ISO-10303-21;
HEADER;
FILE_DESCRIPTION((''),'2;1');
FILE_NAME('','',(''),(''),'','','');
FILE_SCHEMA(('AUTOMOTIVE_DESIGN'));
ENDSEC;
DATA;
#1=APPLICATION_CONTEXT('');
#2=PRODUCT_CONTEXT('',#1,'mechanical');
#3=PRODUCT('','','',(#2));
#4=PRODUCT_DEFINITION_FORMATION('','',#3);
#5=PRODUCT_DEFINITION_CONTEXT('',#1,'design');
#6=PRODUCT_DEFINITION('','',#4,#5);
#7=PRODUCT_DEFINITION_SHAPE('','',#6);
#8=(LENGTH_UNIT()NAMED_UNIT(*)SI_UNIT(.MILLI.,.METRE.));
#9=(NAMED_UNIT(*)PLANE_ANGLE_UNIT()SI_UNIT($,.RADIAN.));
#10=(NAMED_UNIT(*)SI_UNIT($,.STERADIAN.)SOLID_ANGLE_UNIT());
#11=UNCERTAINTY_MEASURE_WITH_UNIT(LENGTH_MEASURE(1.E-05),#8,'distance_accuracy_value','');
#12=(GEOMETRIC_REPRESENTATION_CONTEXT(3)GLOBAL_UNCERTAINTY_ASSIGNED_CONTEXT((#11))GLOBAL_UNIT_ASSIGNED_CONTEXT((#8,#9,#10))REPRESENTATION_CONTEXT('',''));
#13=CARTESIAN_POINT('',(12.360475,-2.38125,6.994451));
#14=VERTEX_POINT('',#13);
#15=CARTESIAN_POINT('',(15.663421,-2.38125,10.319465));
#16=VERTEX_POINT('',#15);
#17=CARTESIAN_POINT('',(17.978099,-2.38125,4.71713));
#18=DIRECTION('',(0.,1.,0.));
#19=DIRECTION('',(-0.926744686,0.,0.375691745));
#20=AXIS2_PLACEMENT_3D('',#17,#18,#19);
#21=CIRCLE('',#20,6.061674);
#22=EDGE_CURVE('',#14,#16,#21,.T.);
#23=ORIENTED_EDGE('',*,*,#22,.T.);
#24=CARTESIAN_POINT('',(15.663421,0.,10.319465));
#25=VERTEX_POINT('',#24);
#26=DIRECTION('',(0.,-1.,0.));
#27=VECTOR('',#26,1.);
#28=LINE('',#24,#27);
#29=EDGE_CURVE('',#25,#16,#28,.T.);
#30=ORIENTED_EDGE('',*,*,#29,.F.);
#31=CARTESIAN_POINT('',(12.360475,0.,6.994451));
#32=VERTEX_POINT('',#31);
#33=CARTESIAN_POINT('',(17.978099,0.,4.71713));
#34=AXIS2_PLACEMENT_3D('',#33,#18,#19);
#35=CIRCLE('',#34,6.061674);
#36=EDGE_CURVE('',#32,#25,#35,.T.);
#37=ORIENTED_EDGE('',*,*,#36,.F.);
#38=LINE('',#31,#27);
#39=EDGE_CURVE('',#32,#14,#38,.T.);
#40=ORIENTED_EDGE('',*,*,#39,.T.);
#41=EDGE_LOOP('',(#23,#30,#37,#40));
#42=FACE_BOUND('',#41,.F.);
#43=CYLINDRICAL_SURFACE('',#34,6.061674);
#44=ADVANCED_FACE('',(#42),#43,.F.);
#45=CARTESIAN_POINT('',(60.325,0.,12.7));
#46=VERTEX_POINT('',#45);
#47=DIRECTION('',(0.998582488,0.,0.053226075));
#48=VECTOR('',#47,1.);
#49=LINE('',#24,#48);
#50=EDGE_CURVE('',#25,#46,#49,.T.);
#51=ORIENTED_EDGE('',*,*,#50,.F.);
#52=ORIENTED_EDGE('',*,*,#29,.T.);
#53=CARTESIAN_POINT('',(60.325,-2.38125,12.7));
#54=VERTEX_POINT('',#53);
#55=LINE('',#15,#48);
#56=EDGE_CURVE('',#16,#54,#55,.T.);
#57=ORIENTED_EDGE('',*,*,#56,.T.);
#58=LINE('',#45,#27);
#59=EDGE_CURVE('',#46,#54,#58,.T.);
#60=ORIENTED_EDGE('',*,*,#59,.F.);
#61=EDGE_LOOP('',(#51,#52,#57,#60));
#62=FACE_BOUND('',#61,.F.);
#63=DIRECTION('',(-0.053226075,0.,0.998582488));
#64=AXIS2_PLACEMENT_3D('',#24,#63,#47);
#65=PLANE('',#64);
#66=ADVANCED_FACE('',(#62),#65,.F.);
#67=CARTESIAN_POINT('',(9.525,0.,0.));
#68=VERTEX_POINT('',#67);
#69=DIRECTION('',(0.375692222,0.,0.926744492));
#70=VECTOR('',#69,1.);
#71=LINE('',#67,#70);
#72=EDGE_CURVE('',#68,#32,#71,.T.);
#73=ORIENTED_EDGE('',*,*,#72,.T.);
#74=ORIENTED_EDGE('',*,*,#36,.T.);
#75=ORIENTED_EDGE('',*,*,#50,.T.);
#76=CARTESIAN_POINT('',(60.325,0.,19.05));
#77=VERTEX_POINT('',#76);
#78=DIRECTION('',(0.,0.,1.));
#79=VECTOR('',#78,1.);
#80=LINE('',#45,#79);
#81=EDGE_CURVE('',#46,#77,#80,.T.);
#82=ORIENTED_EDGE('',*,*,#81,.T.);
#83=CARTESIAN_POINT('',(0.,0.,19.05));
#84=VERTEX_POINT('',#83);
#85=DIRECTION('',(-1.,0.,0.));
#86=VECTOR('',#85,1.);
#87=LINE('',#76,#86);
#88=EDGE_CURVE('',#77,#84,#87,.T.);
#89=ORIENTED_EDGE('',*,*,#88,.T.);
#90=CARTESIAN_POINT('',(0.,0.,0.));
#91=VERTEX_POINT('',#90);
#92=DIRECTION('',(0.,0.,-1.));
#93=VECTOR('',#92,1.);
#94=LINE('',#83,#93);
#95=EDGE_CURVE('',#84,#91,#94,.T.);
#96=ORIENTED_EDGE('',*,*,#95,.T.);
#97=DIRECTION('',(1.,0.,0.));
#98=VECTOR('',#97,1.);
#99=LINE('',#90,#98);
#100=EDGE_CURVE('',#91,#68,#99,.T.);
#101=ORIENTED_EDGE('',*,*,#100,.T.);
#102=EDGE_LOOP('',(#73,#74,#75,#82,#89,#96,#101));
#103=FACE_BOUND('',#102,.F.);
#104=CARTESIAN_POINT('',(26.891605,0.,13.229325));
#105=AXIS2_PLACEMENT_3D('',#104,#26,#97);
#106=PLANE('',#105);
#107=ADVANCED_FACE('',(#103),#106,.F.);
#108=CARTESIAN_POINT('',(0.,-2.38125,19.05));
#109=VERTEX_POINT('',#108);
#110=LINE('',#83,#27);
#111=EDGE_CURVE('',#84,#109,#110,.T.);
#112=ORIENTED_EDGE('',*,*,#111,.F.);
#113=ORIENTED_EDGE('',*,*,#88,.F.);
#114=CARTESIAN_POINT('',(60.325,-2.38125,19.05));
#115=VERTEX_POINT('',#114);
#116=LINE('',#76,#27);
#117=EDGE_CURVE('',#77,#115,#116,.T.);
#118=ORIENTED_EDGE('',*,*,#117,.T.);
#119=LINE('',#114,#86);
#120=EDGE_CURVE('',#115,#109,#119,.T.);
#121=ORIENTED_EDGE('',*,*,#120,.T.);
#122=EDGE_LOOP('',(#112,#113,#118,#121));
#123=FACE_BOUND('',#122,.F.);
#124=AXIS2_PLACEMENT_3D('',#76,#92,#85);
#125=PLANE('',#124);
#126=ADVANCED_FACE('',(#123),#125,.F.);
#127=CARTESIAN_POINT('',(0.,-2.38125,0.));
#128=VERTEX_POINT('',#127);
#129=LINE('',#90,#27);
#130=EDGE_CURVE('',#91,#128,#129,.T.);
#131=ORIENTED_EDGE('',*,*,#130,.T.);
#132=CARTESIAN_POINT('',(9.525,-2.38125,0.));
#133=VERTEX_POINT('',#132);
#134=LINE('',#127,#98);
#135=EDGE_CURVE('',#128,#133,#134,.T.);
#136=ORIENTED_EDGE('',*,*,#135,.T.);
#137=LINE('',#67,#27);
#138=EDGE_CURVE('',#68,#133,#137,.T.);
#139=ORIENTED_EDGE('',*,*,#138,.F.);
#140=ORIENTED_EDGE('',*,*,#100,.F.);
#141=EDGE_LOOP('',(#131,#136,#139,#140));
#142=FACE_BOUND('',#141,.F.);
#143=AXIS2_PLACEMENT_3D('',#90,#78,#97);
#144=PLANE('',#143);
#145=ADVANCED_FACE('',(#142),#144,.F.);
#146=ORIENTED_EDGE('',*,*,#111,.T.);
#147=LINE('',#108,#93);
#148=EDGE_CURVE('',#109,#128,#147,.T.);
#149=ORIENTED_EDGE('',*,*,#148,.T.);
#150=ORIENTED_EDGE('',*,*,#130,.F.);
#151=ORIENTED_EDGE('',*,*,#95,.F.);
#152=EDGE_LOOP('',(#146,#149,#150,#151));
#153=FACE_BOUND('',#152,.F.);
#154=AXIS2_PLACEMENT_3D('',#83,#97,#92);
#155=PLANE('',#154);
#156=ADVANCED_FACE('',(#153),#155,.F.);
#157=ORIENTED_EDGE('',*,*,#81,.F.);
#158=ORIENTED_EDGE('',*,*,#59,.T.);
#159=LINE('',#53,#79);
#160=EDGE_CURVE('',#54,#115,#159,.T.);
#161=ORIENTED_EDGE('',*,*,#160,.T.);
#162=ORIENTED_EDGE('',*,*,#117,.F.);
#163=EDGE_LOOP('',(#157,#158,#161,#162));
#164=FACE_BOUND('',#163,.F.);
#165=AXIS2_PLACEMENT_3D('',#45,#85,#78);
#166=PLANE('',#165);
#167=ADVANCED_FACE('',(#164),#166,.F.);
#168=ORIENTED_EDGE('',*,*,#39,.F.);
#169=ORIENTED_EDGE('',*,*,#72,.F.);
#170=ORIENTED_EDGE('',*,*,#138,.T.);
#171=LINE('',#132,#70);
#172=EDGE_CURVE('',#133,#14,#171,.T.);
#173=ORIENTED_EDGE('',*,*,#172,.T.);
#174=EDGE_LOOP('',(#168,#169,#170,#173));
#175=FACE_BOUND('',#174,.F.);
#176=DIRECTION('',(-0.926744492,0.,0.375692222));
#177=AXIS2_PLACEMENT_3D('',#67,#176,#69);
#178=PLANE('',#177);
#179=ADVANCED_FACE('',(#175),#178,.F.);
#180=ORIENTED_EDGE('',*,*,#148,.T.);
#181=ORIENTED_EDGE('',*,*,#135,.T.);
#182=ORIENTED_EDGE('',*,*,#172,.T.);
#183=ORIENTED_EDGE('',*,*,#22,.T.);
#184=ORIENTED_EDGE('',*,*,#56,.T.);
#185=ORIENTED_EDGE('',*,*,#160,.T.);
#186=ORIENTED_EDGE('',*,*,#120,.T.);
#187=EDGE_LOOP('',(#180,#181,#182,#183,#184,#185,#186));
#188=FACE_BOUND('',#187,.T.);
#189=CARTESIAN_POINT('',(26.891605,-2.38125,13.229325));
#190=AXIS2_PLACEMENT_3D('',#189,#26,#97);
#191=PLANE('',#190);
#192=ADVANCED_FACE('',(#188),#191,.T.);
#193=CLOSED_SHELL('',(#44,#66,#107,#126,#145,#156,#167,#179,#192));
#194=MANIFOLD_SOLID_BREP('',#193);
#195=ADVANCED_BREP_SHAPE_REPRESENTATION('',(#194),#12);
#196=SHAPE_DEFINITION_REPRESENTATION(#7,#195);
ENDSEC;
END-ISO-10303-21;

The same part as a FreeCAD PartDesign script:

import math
import FreeCAD as App
import Part
import Sketcher
Q = App.Units.Quantity

doc = App.newDocument("Part")
body = doc.addObject("PartDesign::Body", "Body")

# Sketch on XZ plane
sketch1 = body.newObject("Sketcher::SketchObject", "Sketch")
sketch1.AttachmentSupport = (doc.getObject("XZ_Plane"), [""])
sketch1.MapMode = "FlatFace"
sketch1.addGeometry([
    Part.LineSegment(App.Vector(60.3, 19.1, 0), App.Vector(0, 19.1, 0)),  # 0
    Part.LineSegment(App.Vector(0, 19.1, 0), App.Vector(0, 0, 0)),  # 1
    Part.LineSegment(App.Vector(0, 0, 0), App.Vector(9.5, 0, 0)),  # 2
    Part.LineSegment(App.Vector(9.5, 0, 0), App.Vector(12.4, 7, 0)),  # 3
    Part.ArcOfCircle(Part.Circle(App.Vector(18, 4.7, 0), App.Vector(0, 0, 1), 6.1), math.radians(112), math.radians(158)),  # 4
    Part.LineSegment(App.Vector(15.7, 10.3, 0), App.Vector(60.3, 12.7, 0)),  # 5
    Part.LineSegment(App.Vector(60.3, 12.7, 0), App.Vector(60.3, 19.1, 0)),  # 6
], False)
sketch1.addConstraint([
    Sketcher.Constraint("Coincident", 0, 2, 1, 1),
    Sketcher.Constraint("Coincident", 1, 2, 2, 1),
    Sketcher.Constraint("Coincident", 2, 2, 3, 1),
    Sketcher.Constraint("Tangent", 3, 2, 4, 2),
    Sketcher.Constraint("Coincident", 4, 1, 5, 1),
    Sketcher.Constraint("Coincident", 5, 2, 6, 1),
    Sketcher.Constraint("Coincident", 6, 2, 0, 1),
    Sketcher.Constraint("Horizontal", 0),
    Sketcher.Constraint("Vertical", 1),
    Sketcher.Constraint("Horizontal", 2),
    Sketcher.Constraint("Vertical", 6),
    Sketcher.Constraint("Coincident", 1, 2, -1, 1),
    Sketcher.Constraint("DistanceX", 2, 2, 5, 2, Q("2 in")),
    Sketcher.Constraint("DistanceY", 1, 2, 1, 1, Q("0.75 in")),
    Sketcher.Constraint("DistanceY", 6, 1, 6, 2, Q("0.25 in")),
    Sketcher.Constraint("DistanceX", 0, 2, 0, 1, Q("2.375 in")),
    Sketcher.Constraint("Radius", 4, Q("6.061674 mm")),
    Sketcher.Constraint("DistanceX", -1, 1, 4, 3, Q("17.978099 mm")),
    Sketcher.Constraint("DistanceY", -1, 1, 4, 3, Q("4.71713 mm")),
    Sketcher.Constraint("DistanceX", -1, 1, 4, 1, Q("15.663421 mm")),
])
pad1 = body.newObject("PartDesign::Pad", "Pad")
pad1.Profile = sketch1
pad1.Length = Q("0.09375 in")

doc.recompute()
